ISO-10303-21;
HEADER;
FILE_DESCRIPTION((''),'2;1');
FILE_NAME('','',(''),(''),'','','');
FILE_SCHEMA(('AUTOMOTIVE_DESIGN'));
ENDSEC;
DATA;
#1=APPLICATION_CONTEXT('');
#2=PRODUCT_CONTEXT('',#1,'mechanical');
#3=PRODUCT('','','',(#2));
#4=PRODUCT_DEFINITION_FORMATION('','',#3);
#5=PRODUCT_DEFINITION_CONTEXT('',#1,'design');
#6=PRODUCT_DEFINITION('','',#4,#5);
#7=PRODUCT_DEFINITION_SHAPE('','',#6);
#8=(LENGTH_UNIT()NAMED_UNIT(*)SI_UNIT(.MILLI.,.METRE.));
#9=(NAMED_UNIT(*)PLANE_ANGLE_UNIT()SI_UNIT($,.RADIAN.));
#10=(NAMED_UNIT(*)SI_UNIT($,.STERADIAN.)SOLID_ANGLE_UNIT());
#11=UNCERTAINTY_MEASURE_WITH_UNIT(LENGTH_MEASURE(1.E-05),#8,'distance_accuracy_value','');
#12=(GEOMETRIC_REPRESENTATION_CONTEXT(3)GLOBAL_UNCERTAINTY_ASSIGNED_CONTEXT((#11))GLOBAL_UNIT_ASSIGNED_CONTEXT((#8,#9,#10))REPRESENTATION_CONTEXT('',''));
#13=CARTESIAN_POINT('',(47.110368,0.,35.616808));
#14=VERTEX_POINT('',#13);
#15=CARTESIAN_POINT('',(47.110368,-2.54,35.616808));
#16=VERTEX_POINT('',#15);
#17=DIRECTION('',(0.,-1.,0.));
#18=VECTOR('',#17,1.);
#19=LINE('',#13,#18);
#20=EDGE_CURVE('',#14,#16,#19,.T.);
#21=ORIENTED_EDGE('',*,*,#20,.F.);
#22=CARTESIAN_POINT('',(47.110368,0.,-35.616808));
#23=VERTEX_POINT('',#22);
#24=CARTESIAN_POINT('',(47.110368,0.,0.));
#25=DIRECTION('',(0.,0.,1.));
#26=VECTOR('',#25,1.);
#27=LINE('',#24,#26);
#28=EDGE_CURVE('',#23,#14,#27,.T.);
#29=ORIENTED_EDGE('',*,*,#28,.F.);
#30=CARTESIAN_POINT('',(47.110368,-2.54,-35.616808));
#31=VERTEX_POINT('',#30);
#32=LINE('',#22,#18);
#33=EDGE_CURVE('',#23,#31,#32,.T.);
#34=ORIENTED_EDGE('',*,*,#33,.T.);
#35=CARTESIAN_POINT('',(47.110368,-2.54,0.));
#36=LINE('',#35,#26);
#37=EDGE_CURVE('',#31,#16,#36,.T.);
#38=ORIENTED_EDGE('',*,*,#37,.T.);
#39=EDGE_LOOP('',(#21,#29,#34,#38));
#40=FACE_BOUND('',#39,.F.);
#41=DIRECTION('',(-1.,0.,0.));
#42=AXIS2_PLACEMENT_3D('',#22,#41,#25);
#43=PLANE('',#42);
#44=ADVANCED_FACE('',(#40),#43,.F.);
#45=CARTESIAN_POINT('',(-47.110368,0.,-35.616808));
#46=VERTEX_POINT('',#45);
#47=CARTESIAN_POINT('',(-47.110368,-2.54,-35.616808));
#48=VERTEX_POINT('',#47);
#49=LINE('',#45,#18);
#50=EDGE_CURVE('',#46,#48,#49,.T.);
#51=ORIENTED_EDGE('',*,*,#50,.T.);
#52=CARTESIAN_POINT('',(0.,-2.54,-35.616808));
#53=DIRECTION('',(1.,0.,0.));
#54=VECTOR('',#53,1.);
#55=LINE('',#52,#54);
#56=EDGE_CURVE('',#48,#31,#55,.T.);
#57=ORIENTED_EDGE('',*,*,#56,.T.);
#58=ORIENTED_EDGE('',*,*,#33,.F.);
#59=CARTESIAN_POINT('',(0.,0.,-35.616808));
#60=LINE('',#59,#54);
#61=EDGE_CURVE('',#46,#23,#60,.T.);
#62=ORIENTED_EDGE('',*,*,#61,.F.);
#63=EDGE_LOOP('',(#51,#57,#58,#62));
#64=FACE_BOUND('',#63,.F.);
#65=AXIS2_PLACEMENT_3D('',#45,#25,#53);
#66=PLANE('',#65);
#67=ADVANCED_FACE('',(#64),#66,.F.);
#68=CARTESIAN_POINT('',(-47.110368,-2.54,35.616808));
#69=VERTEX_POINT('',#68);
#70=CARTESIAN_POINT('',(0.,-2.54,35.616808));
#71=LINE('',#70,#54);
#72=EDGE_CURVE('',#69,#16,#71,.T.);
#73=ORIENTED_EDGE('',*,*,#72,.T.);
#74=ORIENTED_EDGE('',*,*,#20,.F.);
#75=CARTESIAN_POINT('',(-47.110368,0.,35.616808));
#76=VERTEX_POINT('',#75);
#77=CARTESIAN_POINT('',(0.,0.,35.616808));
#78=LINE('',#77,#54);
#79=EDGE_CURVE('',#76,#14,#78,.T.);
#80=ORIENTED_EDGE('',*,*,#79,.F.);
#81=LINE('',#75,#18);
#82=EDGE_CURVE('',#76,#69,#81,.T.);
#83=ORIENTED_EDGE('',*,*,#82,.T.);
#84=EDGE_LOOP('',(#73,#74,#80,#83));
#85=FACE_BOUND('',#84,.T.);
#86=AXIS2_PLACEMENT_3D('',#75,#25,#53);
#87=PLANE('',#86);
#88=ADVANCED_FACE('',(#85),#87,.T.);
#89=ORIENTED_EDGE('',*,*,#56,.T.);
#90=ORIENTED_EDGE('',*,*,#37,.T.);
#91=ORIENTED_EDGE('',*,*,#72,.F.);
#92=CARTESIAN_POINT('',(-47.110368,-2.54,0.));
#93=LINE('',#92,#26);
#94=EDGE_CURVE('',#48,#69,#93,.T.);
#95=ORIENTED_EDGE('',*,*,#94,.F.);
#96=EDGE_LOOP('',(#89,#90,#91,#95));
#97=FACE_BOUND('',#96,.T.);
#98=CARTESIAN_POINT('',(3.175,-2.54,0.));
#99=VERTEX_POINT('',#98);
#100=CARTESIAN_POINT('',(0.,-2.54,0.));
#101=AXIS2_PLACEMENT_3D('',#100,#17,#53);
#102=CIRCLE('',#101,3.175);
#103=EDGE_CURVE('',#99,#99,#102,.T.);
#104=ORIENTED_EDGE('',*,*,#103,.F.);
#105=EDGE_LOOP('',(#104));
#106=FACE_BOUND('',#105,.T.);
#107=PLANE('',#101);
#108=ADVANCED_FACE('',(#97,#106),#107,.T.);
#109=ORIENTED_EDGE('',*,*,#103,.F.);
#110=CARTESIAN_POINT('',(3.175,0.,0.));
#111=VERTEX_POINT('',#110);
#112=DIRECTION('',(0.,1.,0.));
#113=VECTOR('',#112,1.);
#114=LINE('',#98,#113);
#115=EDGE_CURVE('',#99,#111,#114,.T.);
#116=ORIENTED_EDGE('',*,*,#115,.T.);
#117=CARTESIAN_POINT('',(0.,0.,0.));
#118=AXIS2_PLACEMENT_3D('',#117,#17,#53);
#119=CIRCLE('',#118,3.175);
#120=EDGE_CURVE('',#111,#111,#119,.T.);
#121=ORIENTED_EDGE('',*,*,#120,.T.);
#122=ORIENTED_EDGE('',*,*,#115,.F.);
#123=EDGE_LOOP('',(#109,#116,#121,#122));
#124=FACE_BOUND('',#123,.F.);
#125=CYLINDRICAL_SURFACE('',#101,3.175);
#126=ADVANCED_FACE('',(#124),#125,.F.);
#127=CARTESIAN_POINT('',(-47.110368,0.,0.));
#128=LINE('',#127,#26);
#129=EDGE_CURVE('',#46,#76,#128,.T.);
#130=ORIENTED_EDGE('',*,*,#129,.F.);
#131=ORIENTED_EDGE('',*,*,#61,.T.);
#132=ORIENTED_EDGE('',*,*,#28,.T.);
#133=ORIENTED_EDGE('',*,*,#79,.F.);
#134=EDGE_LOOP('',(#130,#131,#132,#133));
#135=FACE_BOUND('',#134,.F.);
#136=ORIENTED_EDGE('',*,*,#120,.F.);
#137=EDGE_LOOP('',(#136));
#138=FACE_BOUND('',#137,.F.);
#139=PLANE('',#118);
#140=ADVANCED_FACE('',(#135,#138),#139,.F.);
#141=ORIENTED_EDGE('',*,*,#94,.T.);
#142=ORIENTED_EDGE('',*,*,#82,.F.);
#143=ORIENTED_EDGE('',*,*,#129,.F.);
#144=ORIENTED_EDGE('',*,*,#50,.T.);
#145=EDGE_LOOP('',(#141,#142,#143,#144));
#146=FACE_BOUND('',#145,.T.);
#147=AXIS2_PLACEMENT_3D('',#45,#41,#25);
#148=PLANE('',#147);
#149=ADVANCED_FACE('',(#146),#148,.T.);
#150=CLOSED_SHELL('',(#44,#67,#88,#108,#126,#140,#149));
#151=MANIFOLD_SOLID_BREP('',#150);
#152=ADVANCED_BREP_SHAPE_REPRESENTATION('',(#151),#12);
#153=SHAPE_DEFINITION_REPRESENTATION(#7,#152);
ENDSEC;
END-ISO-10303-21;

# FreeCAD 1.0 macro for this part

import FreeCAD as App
import Part
import Sketcher

V = App.Vector
Q = App.Units.Quantity


def add_polygon(sketch, points):
    """Adds a closed chain of lines whose ends are joined by coincident constraints."""
    first, n = sketch.GeometryCount, len(points)
    for a, b in zip(points, points[1:] + points[:1]):
        sketch.addGeometry(Part.LineSegment(App.Vector(*a, 0), App.Vector(*b, 0)), False)
    for i in range(n):
        sketch.addConstraint(Sketcher.Constraint("Coincident", first + i, 2, first + (i + 1) % n, 1))

doc = App.newDocument("Part")
body = doc.addObject("PartDesign::Body", "Body")

# Sketch on XZ plane
sketch1 = body.newObject("Sketcher::SketchObject", "Sketch")
sketch1.AttachmentSupport = (doc.getObject("XZ_Plane"), [""])
sketch1.MapMode = "FlatFace"
add_polygon(sketch1, [(-47.110368, 35.616808), (-47.110368, -35.616808), (47.110368, -35.616808), (47.110368, 35.616808)])  # lines 0-3
sketch1.addConstraint(Sketcher.Constraint("Vertical", 0))
sketch1.addConstraint(Sketcher.Constraint("Horizontal", 1))
sketch1.addConstraint(Sketcher.Constraint("Vertical", 2))
sketch1.addConstraint(Sketcher.Constraint("Horizontal", 3))
sketch1.addConstraint(Sketcher.Constraint("Symmetric", 0, 2, 2, 2, -1, 1))
sketch1.addConstraint(Sketcher.Constraint("DistanceX", 1, 1, 1, 2, 94.220736))
sketch1.addConstraint(Sketcher.Constraint("DistanceY", 0, 2, 0, 1, 71.233616))
pad1 = body.newObject("PartDesign::Pad", "Pad")
pad1.Profile = sketch1
pad1.Length = Q("0.1 in")

# Sketch on XZ plane
sketch2 = body.newObject("Sketcher::SketchObject", "Sketch001")
sketch2.AttachmentSupport = (doc.getObject("XZ_Plane"), [""])
sketch2.MapMode = "FlatFace"
sketch2.AttachmentOffset = App.Placement(V(0, 0, 0.1 * 25.4), App.Rotation())
sketch2.addGeometry(Part.Circle(V(0, 0, 0), V(0, 0, 1), 3.175), False)
sketch2.addConstraint(Sketcher.Constraint("Coincident", 0, 3, -1, 1))
sketch2.addConstraint(Sketcher.Constraint("Diameter", 0, Q("0.25 in")))
pocket1 = body.newObject("PartDesign::Pocket", "Pocket")
pocket1.Profile = sketch2
pocket1.Type = "ThroughAll"

doc.recompute()
